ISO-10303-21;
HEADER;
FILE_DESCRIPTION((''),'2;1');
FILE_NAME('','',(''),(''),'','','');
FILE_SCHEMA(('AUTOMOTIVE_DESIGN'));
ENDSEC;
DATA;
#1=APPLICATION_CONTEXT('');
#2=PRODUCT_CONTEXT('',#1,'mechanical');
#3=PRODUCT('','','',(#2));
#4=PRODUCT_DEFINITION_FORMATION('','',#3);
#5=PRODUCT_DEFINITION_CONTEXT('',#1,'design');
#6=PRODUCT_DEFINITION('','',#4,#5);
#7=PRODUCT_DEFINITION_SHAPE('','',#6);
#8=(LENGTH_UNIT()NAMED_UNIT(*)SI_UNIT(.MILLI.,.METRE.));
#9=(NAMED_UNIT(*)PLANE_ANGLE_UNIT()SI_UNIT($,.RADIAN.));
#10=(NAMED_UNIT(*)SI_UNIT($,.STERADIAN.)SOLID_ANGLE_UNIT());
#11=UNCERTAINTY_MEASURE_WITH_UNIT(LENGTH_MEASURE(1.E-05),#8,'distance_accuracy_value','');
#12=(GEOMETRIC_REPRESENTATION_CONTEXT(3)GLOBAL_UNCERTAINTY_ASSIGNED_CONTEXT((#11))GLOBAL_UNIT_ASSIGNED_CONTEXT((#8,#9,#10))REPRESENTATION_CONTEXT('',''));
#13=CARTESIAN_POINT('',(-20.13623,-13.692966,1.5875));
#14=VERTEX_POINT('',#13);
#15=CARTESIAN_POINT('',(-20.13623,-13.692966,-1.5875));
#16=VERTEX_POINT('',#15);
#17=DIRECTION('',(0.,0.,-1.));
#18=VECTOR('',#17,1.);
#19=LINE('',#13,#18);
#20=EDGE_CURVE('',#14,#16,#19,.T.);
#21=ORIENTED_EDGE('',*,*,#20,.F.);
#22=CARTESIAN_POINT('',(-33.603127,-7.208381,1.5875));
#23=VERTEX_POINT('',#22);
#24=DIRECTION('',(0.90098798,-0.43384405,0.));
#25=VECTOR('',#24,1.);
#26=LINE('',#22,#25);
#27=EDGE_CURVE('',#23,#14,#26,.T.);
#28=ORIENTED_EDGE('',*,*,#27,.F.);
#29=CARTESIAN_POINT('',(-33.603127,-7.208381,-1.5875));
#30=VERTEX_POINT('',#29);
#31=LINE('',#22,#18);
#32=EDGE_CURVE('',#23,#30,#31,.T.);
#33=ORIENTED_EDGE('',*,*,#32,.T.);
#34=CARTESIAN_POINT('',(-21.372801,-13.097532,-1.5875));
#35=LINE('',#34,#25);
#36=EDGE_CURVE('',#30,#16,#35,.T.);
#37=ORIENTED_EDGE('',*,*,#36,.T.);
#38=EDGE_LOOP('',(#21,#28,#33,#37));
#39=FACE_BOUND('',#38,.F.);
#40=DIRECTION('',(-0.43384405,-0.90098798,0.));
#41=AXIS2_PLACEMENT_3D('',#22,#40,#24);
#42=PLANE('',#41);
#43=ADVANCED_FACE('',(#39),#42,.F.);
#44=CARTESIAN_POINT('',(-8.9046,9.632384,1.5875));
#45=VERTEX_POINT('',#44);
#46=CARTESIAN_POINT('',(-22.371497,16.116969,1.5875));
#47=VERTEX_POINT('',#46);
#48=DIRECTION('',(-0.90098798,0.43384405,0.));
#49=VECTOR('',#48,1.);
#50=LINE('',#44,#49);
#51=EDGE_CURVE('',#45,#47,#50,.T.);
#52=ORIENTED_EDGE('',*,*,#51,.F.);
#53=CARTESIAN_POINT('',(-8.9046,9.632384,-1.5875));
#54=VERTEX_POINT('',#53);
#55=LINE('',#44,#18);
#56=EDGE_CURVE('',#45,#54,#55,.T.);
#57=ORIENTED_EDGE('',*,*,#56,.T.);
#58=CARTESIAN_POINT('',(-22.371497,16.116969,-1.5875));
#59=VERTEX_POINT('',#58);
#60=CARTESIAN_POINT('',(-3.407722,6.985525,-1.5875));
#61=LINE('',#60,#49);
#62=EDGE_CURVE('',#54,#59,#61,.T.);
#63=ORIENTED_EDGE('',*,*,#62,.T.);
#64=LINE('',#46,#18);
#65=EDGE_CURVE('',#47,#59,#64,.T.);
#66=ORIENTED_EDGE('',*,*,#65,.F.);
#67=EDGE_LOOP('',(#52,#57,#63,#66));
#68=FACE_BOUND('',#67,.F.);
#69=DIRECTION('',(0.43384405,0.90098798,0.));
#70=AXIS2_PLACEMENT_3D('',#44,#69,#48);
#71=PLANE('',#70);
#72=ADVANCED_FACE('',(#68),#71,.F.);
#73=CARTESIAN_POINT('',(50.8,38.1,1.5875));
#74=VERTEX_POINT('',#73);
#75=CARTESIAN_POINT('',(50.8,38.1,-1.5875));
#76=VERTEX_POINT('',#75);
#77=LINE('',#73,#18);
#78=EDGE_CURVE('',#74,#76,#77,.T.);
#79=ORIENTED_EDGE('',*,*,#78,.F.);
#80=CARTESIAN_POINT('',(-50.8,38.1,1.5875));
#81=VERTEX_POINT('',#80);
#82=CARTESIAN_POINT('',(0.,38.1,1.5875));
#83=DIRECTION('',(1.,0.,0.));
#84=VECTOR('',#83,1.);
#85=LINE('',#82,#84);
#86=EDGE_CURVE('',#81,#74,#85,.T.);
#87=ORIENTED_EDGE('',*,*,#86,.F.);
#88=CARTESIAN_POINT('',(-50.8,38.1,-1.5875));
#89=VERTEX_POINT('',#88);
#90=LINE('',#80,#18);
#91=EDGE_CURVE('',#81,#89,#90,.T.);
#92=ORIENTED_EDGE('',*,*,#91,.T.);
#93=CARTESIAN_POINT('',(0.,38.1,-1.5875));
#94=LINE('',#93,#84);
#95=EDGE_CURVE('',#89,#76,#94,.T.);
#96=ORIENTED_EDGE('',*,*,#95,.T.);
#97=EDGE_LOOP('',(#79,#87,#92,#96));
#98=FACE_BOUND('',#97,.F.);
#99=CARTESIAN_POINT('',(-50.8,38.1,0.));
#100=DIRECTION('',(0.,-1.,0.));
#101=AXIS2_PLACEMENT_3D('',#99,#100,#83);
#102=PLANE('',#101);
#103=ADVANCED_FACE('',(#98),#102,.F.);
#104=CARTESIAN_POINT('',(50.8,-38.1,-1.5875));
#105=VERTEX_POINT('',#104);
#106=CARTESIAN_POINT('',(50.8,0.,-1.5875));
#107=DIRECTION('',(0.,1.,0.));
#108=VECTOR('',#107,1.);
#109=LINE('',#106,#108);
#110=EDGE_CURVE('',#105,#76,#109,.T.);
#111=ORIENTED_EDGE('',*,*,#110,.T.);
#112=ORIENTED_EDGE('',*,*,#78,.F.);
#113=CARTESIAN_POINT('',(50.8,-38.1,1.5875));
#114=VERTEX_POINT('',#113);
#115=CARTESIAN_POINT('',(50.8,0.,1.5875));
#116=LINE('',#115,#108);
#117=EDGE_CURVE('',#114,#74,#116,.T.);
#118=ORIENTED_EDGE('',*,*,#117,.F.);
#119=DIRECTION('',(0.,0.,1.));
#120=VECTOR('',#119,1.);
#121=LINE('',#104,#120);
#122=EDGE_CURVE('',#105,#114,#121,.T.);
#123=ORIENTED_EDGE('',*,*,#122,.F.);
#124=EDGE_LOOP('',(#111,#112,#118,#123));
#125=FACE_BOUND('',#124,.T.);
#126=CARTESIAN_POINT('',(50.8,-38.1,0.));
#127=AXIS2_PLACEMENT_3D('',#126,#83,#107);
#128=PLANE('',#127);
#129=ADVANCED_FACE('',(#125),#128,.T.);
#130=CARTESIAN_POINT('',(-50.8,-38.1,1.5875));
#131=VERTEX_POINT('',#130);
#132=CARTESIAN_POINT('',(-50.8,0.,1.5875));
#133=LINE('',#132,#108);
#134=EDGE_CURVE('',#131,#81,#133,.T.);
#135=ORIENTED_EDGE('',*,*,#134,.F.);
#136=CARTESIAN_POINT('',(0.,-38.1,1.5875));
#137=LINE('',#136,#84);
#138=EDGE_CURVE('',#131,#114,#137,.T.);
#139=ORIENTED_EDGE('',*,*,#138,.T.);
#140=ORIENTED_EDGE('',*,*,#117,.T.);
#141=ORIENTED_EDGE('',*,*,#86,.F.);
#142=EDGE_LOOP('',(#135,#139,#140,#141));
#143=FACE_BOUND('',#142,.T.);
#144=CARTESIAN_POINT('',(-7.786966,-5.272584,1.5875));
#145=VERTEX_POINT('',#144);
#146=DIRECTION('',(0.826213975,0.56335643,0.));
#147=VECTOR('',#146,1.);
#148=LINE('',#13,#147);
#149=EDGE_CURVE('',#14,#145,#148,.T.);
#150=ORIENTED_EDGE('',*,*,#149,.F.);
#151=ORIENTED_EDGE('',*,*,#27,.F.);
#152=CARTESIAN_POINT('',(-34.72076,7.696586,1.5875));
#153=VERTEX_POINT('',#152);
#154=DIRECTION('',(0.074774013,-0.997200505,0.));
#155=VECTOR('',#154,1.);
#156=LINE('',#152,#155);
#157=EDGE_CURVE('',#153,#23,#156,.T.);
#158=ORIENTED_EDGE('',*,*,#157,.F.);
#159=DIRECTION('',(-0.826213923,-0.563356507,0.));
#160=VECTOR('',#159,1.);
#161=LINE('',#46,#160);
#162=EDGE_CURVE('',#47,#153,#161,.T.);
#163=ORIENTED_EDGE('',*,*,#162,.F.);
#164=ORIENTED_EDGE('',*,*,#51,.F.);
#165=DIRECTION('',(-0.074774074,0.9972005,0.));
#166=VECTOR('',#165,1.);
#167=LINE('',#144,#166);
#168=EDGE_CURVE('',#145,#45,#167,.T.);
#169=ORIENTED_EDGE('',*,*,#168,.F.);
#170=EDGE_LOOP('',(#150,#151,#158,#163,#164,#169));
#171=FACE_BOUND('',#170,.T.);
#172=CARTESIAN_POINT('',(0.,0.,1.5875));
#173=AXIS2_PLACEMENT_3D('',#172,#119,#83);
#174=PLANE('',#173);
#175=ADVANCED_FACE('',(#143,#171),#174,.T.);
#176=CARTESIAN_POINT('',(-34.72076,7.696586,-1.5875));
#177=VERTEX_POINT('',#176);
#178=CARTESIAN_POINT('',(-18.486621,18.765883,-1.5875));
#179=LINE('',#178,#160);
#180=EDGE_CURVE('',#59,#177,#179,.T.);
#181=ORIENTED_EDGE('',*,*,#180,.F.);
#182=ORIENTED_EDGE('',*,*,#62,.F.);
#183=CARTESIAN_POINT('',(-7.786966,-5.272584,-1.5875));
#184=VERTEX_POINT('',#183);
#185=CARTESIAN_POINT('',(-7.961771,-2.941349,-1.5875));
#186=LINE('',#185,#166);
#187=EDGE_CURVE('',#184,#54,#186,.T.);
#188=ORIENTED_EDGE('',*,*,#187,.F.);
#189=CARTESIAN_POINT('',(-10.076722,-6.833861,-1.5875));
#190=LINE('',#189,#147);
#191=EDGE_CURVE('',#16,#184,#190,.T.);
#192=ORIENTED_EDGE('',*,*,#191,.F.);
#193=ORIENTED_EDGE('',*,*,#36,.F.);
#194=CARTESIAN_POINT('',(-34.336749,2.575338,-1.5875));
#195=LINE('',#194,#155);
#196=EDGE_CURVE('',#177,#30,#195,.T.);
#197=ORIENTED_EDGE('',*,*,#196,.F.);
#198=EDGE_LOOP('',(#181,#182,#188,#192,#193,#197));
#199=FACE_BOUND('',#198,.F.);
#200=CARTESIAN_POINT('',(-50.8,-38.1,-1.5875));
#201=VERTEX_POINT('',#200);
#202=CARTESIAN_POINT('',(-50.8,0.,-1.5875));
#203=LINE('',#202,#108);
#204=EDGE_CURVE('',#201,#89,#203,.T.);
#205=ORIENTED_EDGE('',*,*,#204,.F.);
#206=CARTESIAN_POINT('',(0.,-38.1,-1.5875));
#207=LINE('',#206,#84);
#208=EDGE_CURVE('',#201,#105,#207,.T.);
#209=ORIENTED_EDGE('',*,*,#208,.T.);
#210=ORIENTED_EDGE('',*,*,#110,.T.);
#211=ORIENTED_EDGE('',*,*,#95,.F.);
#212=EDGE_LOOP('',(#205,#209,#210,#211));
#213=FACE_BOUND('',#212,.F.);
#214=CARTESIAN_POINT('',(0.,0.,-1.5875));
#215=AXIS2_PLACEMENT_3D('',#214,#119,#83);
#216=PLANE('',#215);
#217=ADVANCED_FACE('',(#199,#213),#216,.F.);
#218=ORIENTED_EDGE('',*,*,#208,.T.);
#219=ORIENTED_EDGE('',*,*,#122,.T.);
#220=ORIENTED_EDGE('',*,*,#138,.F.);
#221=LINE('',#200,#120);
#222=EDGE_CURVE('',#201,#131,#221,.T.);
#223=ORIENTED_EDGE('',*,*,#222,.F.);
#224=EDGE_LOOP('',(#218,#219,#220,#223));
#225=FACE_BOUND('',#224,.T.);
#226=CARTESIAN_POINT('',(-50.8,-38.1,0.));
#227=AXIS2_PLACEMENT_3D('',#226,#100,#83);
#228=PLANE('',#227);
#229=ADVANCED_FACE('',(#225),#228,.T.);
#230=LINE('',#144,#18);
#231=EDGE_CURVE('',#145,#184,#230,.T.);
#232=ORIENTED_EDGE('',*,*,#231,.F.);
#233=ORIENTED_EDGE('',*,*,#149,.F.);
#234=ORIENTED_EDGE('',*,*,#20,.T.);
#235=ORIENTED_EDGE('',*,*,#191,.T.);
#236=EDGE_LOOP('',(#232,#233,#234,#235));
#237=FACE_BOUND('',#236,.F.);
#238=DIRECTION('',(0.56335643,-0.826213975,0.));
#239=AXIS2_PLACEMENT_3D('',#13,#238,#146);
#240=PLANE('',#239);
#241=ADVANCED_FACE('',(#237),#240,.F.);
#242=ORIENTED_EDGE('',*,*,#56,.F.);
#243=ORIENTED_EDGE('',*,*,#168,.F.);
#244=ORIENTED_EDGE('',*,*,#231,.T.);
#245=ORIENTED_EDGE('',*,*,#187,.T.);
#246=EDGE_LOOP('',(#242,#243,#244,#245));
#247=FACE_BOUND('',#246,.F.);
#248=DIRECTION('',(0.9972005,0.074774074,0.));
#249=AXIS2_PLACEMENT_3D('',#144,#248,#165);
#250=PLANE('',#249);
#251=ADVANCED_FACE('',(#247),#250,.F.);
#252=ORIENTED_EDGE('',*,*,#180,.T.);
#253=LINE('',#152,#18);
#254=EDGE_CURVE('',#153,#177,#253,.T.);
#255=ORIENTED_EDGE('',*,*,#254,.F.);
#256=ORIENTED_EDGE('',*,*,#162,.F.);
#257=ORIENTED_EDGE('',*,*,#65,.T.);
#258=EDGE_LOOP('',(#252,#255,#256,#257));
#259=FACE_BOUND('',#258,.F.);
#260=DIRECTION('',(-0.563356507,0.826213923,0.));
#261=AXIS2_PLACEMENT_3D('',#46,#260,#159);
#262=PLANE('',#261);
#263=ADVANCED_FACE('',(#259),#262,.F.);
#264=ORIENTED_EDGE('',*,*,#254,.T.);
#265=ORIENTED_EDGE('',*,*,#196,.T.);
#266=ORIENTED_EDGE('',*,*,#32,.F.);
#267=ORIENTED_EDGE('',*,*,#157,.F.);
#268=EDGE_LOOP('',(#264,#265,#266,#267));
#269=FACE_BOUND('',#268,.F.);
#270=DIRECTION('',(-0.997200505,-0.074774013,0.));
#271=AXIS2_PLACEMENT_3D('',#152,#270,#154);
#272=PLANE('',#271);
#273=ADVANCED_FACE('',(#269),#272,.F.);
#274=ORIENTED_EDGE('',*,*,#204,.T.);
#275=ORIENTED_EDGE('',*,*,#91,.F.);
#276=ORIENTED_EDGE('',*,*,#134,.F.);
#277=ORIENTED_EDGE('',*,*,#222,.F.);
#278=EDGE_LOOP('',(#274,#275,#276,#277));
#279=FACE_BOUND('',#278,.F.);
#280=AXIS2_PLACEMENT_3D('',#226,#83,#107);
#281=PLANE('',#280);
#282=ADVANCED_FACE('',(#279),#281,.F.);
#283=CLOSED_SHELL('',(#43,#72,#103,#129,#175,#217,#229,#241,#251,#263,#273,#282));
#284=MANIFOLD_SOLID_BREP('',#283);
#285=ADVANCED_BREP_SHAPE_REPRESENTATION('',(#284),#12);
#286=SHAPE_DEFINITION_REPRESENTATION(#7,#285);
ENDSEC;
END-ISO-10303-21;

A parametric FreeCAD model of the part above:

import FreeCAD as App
import Part
import Sketcher

V = App.Vector
Q = App.Units.Quantity


def add_polygon(sketch, points):
    """Adds a closed chain of lines whose ends are joined by coincident constraints."""
    first, n = sketch.GeometryCount, len(points)
    for a, b in zip(points, points[1:] + points[:1]):
        sketch.addGeometry(Part.LineSegment(App.Vector(*a, 0), App.Vector(*b, 0)), False)
    for i in range(n):
        sketch.addConstraint(Sketcher.Constraint("Coincident", first + i, 2, first + (i + 1) % n, 1))

doc = App.newDocument("Part")
body = doc.addObject("PartDesign::Body", "Body")

# Sketch on XY plane
sketch1 = body.newObject("Sketcher::SketchObject", "Sketch")
sketch1.AttachmentSupport = (doc.getObject("XY_Plane"), [""])
sketch1.MapMode = "FlatFace"
add_polygon(sketch1, [(-51, 38), (-51, -38), (51, -38), (51, 38)])  # lines 0-3
sketch1.addConstraint([
    Sketcher.Constraint("Vertical", 0),
    Sketcher.Constraint("Horizontal", 1),
    Sketcher.Constraint("Vertical", 2),
    Sketcher.Constraint("Horizontal", 3),
    Sketcher.Constraint("Symmetric", 0, 2, 2, 2, -1, 1),
    Sketcher.Constraint("DistanceX", 1, 1, 1, 2, Q("4 in")),
    Sketcher.Constraint("DistanceY", 0, 2, 0, 1, Q("3 in")),
])
pad1 = body.newObject("PartDesign::Pad", "Pad")
pad1.Profile = sketch1
pad1.Length = Q("0.125 in")
pad1.Midplane = True

# Sketch on XY plane
sketch2 = body.newObject("Sketcher::SketchObject", "Sketch001")
sketch2.AttachmentSupport = (doc.getObject("XY_Plane"), [""])
sketch2.MapMode = "FlatFace"
sketch2.AttachmentOffset = App.Placement(V(0, 0, 0.0625 * 25.4), App.Rotation())
add_polygon(sketch2, [(-22, 16), (-35, 8), (-34, -7), (-20, -14), (-8, -5), (-9, 10)])  # lines 0-5
sketch2.addConstraint([
    Sketcher.Constraint("Parallel", 0, 3),
    Sketcher.Constraint("Parallel", 1, 4),
    Sketcher.Constraint("Parallel", 2, 5),
    Sketcher.Constraint("Equal", 0, 1),
    Sketcher.Constraint("Equal", 1, 2),
    Sketcher.Constraint("Equal", 2, 3),
    Sketcher.Constraint("DistanceX", 4, 2, -1, 1, 8.9046),
    Sketcher.Constraint("DistanceY", 0, 2, 4, 2, 1.935798),
    Sketcher.Constraint("Distance", 0, 14.946811),
    Sketcher.Constraint("DistanceX", 0, 2, -1, 1, 34.72076),
    Sketcher.Constraint("DistanceY", 1, 2, -1, 1, 7.208381),
    Sketcher.Constraint("DistanceX", 2, 2, -1, 1, 20.13623),
])
pocket1 = body.newObject("PartDesign::Pocket", "Pocket")
pocket1.Profile = sketch2
pocket1.Type = "ThroughAll"

doc.recompute()
